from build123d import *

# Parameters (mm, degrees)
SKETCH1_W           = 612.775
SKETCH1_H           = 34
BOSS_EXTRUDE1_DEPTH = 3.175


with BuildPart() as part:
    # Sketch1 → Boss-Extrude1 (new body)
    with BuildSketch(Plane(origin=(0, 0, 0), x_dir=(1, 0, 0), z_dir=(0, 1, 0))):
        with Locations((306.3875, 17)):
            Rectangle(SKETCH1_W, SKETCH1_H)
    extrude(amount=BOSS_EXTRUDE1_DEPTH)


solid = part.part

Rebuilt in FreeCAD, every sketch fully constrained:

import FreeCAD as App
import Part
import Sketcher

V = App.Vector
Q = App.Units.Quantity


def add_polygon(sketch, points):
    """Adds a closed chain of lines whose ends are joined by coincident constraints."""
    first, n = sketch.GeometryCount, len(points)
    for a, b in zip(points, points[1:] + points[:1]):
        sketch.addGeometry(Part.LineSegment(App.Vector(*a, 0), App.Vector(*b, 0)), False)
    for i in range(n):
        sketch.addConstraint(Sketcher.Constraint("Coincident", first + i, 2, first + (i + 1) % n, 1))

doc = App.newDocument("Part")
body = doc.addObject("PartDesign::Body", "Body")

sketch1 = body.newObject("Sketcher::SketchObject", "Sketch")
sketch1.AttachmentSupport = (doc.getObject("XZ_Plane"), [""])
sketch1.MapMode = "FlatFace"
add_polygon(sketch1, [(0, -34), (0, 0), (612.775, 0), (612.775, -34)])
sketch1.addConstraint(Sketcher.Constraint("Vertical", 0))
sketch1.addConstraint(Sketcher.Constraint("Horizontal", 1))
sketch1.addConstraint(Sketcher.Constraint("Vertical", 2))
sketch1.addConstraint(Sketcher.Constraint("Horizontal", 3))
sketch1.addConstraint(Sketcher.Constraint("Coincident", 0, 2, -1, 1))
sketch1.addConstraint(Sketcher.Constraint("DistanceX", 1, 1, 1, 2, Q("24.125 in")))
sketch1.addConstraint(Sketcher.Constraint("DistanceY", 0, 1, 0, 2, Q("34 mm")))
pad1 = body.newObject("PartDesign::Pad", "Pad")
pad1.Profile = sketch1
pad1.Length = Q("0.125 in")
pad1.Reversed = True

doc.recompute()
